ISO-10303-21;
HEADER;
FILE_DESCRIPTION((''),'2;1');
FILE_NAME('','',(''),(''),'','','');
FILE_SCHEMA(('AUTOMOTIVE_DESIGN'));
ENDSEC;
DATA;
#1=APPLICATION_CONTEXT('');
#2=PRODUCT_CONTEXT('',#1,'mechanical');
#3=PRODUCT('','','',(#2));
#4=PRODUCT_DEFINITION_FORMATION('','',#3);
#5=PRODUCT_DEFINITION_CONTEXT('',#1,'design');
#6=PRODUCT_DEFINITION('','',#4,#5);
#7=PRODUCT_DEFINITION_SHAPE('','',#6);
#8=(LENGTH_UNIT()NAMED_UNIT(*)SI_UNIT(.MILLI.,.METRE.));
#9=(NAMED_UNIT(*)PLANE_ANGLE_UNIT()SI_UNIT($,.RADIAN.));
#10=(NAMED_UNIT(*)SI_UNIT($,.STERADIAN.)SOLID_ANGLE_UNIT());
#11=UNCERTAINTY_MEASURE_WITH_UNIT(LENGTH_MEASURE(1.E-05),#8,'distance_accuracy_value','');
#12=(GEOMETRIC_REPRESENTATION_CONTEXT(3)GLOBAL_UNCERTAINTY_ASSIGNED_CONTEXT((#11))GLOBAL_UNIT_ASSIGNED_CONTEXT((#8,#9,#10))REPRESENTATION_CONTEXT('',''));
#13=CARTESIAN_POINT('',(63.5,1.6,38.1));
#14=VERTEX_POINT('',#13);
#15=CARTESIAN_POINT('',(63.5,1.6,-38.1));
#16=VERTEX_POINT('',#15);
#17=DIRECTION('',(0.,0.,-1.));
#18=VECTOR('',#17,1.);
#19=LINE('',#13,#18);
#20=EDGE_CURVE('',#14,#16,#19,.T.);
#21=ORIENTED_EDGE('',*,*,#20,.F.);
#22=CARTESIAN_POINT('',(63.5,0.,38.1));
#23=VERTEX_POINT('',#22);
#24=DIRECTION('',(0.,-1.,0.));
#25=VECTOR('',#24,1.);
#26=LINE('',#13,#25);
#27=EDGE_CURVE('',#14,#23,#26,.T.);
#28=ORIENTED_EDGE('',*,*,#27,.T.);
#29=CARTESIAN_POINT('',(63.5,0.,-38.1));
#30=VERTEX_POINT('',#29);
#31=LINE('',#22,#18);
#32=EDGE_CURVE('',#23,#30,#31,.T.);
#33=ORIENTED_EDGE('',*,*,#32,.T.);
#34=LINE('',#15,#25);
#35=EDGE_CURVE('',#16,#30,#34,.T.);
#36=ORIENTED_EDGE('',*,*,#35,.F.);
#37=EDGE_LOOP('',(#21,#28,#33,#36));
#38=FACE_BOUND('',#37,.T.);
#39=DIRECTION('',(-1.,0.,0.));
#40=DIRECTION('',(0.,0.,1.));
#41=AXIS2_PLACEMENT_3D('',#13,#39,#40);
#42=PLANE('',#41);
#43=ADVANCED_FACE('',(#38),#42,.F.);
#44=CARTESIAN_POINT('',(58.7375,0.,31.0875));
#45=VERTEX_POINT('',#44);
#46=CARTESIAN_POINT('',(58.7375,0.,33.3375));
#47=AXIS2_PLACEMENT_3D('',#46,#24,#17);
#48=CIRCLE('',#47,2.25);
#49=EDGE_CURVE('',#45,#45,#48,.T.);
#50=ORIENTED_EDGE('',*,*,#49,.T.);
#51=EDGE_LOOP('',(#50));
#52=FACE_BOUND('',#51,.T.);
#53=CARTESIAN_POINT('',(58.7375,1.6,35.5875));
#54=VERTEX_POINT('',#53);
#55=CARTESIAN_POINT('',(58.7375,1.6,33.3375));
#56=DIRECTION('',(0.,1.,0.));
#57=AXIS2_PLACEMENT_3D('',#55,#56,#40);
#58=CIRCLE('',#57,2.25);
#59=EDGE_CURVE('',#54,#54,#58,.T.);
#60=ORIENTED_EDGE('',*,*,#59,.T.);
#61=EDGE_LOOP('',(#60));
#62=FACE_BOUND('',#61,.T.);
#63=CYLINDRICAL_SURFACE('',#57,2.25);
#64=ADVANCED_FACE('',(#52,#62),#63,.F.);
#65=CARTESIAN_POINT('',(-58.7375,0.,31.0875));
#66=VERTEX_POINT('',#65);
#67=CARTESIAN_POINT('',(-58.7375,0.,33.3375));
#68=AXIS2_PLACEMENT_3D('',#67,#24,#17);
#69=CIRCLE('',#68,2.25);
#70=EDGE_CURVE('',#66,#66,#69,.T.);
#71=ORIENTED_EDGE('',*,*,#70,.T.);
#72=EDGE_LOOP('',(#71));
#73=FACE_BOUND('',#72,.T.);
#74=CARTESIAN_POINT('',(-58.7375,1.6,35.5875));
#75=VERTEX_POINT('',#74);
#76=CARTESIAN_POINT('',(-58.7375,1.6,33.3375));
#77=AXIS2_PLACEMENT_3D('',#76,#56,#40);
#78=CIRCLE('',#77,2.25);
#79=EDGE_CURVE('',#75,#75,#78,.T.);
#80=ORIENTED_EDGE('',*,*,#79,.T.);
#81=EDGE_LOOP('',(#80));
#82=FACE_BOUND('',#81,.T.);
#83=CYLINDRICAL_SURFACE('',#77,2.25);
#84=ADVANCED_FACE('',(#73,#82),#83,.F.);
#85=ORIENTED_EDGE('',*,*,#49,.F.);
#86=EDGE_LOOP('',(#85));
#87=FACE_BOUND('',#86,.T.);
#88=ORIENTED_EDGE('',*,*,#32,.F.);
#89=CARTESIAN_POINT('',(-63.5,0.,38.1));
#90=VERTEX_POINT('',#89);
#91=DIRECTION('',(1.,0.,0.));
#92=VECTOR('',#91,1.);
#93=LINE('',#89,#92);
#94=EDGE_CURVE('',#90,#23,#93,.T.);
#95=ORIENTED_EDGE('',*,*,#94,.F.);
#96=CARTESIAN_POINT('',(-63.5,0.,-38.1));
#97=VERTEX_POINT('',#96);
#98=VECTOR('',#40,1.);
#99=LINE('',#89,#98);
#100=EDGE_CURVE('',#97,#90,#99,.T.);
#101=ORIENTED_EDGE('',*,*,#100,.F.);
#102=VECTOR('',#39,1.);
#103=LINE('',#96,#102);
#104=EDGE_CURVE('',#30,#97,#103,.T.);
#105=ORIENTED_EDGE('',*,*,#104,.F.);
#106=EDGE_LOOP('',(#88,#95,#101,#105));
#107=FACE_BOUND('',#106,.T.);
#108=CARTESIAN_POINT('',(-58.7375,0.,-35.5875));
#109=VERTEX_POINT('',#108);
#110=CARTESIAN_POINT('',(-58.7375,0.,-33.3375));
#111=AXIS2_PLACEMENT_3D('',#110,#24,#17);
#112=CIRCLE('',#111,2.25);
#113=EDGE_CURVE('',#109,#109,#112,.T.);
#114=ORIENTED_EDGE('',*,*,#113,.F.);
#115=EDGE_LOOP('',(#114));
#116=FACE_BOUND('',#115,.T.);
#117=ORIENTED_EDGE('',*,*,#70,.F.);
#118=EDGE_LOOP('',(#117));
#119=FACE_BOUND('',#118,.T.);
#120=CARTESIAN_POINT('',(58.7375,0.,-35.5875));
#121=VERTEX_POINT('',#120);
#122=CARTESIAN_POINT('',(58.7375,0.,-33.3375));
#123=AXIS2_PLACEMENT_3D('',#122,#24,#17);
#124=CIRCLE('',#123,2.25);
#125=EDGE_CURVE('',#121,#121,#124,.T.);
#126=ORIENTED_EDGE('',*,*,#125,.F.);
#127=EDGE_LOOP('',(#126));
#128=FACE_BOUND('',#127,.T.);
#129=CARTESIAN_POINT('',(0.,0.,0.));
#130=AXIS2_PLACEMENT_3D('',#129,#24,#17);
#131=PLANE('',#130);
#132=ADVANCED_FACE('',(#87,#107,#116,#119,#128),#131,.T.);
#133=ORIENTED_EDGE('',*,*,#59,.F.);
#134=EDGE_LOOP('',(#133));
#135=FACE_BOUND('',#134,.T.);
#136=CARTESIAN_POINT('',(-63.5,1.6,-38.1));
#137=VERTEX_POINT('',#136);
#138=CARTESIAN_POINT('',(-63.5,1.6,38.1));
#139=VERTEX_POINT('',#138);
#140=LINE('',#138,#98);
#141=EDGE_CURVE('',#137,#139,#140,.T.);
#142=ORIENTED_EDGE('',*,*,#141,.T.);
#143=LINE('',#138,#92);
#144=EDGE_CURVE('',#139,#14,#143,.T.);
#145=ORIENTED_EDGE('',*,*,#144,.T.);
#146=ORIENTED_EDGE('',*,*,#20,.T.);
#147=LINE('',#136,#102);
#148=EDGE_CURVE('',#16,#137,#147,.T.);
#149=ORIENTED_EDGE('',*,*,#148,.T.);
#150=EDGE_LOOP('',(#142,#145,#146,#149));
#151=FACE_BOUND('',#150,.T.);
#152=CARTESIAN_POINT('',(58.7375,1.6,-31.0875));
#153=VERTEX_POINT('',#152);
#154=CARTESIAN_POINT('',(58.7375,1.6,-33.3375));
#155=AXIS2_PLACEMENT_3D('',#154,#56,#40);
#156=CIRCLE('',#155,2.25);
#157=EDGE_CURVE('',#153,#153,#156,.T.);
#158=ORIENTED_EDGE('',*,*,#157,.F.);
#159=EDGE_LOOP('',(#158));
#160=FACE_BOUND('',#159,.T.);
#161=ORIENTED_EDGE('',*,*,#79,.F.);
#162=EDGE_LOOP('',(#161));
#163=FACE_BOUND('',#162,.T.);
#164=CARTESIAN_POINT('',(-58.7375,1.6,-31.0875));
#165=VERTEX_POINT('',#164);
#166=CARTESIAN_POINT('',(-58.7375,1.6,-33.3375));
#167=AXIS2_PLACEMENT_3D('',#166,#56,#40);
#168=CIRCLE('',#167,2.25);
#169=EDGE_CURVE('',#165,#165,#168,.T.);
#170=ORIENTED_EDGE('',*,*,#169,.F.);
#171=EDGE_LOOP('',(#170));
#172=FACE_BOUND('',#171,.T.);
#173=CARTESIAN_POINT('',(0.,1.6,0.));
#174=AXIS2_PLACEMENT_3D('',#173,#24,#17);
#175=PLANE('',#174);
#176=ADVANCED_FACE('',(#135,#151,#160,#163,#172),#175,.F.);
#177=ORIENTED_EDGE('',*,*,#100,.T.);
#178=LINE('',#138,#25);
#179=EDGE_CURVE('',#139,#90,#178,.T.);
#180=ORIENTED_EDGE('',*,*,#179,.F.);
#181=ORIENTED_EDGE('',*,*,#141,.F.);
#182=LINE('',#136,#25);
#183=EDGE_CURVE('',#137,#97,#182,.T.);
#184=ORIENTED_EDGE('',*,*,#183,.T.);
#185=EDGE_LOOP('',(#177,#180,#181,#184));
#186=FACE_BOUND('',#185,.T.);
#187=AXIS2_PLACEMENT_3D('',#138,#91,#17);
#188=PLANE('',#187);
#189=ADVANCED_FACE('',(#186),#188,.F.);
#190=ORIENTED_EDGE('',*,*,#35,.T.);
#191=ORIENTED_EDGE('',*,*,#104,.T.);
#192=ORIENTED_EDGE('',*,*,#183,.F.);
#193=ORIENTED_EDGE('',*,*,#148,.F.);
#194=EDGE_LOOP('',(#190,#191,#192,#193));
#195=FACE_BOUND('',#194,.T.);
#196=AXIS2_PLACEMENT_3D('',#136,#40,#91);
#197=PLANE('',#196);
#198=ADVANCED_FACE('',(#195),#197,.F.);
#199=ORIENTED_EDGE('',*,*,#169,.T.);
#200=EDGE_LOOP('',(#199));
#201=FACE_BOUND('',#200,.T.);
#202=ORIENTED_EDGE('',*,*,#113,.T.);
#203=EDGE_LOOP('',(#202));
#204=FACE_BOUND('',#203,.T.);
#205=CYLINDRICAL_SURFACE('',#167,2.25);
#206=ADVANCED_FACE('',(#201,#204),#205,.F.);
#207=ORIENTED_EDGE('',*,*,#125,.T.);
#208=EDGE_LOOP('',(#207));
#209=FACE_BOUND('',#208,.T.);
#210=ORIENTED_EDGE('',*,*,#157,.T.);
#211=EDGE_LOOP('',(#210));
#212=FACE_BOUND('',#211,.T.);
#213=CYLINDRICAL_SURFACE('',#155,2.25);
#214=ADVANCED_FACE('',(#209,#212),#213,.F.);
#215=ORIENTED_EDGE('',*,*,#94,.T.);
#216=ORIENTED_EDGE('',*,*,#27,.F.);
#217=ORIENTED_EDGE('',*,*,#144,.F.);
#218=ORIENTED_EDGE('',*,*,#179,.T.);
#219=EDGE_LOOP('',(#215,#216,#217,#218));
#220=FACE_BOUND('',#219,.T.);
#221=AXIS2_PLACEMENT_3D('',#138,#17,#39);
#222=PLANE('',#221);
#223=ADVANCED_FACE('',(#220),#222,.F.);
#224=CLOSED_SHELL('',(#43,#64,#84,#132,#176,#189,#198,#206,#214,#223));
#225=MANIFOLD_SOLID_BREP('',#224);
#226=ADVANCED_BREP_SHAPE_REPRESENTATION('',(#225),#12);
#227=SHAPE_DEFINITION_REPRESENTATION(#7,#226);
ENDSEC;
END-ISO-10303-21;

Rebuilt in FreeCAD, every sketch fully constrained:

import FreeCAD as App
import Part
import Sketcher


def add_polygon(sketch, points):
    """Adds a closed chain of lines whose ends are joined by coincident constraints."""
    first, n = sketch.GeometryCount, len(points)
    for a, b in zip(points, points[1:] + points[:1]):
        sketch.addGeometry(Part.LineSegment(App.Vector(*a, 0), App.Vector(*b, 0)), False)
    for i in range(n):
        sketch.addConstraint(Sketcher.Constraint("Coincident", first + i, 2, first + (i + 1) % n, 1))

doc = App.newDocument("Part")
body = doc.addObject("PartDesign::Body", "Body")

sketch1 = doc.addObject("Sketcher::SketchObject", "Sketch")
body.addObject(sketch1)
sketch1.AttachmentSupport = (doc.XZ_Plane, [""])
sketch1.MapMode = "FlatFace"
add_polygon(sketch1, [(-64, -38), (-64, 38), (64, 38), (64, -38)])
sketch1.addConstraint([
    Sketcher.Constraint("Vertical", 0),
    Sketcher.Constraint("Horizontal", 1),
    Sketcher.Constraint("Vertical", 2),
    Sketcher.Constraint("Horizontal", 3),
    Sketcher.Constraint("Symmetric", 0, 2, 2, 2, -1, 1),
    Sketcher.Constraint("DistanceX", 1, 1, 1, 2, 127.0),
    Sketcher.Constraint("DistanceY", 0, 1, 0, 2, 76.2),
])
pad1 = doc.addObject("PartDesign::Pad", "Pad")
body.addObject(pad1)
pad1.Profile = sketch1
pad1.Length = 1.6
pad1.Reversed = True

sketch2 = doc.addObject("Sketcher::SketchObject", "Sketch001")
body.addObject(sketch2)
sketch2.AttachmentSupport = (doc.XZ_Plane, [""])
sketch2.MapMode = "FlatFace"
sketch2.AttachmentOffset = App.Placement(App.Vector(0, 0, -1.6), App.Rotation())
sketch2.addGeometry([
    Part.Circle(App.Vector(-58.7, -33.3, 0), App.Vector(0, 0, 1), 2.2),
    Part.Circle(App.Vector(-58.7, 33.3, 0), App.Vector(0, 0, 1), 2.2),
    Part.Circle(App.Vector(58.7, 33.3, 0), App.Vector(0, 0, 1), 2.2),
    Part.Circle(App.Vector(58.7, -33.3, 0), App.Vector(0, 0, 1), 2.2),
], False)
sketch2.addConstraint([
    Sketcher.Constraint("Equal", 0, 1),
    Sketcher.Constraint("Equal", 1, 2),
    Sketcher.Constraint("Equal", 2, 3),
    Sketcher.Constraint("Symmetric", 0, 3, 2, 3, -1, 1),
    Sketcher.Constraint("Symmetric", 1, 3, 3, 3, -1, 1),
    Sketcher.Constraint("Symmetric", 1, 3, 2, 3, -2),
    Sketcher.Constraint("Diameter", 0, 4.5),
    Sketcher.Constraint("DistanceY", 0, 3, 1, 3, 66.675),
    Sketcher.Constraint("DistanceX", 1, 3, 2, 3, 117.475),
])
doc.recompute()
hole = doc.addObject("PartDesign::Hole", "Hole")
body.addObject(hole)
hole.Profile = sketch2
hole.ThreadType = "None"
hole.Diameter = 4.5
hole.DepthType = "Dimension"
hole.Depth = 50
hole.DrillPoint = "Angled"
hole.DrillPointAngle = 118
hole.Reversed = True

doc.recompute()
